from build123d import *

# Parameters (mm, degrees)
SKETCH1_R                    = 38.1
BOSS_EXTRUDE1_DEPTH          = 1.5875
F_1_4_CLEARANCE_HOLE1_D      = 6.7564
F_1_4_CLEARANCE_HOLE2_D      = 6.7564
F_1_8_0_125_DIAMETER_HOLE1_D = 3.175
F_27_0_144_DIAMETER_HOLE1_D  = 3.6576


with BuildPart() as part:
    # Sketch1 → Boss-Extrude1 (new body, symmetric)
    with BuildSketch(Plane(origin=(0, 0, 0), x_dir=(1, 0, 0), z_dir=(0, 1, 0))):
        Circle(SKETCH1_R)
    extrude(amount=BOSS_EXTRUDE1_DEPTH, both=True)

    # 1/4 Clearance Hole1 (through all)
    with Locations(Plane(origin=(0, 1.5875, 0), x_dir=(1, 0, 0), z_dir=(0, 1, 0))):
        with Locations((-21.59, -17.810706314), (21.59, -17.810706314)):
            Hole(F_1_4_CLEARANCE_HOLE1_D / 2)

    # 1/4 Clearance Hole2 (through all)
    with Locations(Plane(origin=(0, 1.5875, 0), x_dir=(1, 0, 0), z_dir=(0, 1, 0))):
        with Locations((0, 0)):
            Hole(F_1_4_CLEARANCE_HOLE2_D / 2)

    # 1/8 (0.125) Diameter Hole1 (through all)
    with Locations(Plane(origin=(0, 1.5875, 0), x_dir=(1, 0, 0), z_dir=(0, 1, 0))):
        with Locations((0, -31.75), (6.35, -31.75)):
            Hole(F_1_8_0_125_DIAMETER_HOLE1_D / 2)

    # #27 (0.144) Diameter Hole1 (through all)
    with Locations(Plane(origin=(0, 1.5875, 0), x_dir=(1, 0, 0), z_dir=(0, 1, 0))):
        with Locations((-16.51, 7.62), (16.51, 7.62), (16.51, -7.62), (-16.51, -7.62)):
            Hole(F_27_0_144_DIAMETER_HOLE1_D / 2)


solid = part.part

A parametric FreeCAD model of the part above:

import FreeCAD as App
import Part
import Sketcher
Q = App.Units.Quantity

doc = App.newDocument("Part")
body = doc.addObject("PartDesign::Body", "Body")

sketch1 = doc.addObject("Sketcher::SketchObject", "Sketch")
body.addObject(sketch1)
sketch1.AttachmentSupport = (doc.XZ_Plane, [""])
sketch1.MapMode = "FlatFace"
sketch1.addGeometry(Part.Circle(App.Vector(0, 0, 0), App.Vector(0, 0, 1), 38.1), False)
sketch1.addConstraint([
    Sketcher.Constraint("Coincident", 0, 3, -1, 1),
    Sketcher.Constraint("Diameter", 0, Q("3 in")),
])
pad1 = doc.addObject("PartDesign::Pad", "Pad")
body.addObject(pad1)
pad1.Profile = sketch1
pad1.Length = Q("0.125 in")
pad1.Midplane = True

sketch2 = doc.addObject("Sketcher::SketchObject", "Sketch001")
body.addObject(sketch2)
sketch2.AttachmentSupport = (doc.XZ_Plane, [""])
sketch2.MapMode = "FlatFace"
sketch2.AttachmentOffset = App.Placement(App.Vector(0, 0, -0.0625 * 25.4), App.Rotation())
sketch2.addGeometry([
    Part.Circle(App.Vector(-21.59, 17.810706, 0), App.Vector(0, 0, 1), 3.3782),
    Part.Circle(App.Vector(21.59, 17.810706, 0), App.Vector(0, 0, 1), 3.3782),
], False)
sketch2.addConstraint([
    Sketcher.Constraint("Equal", 0, 1),
    Sketcher.Constraint("Symmetric", 0, 3, 1, 3, -2),
    Sketcher.Constraint("Diameter", 0, Q("0.266 in")),
    Sketcher.Constraint("DistanceX", 0, 3, 1, 3, Q("1.7 in")),
    Sketcher.Constraint("DistanceY", -1, 1, 0, 3, Q("17.810706 mm")),
])
doc.recompute()
hole = doc.addObject("PartDesign::Hole", "Hole")
body.addObject(hole)
hole.Profile = sketch2
hole.ThreadType = "None"
hole.Diameter = Q("0.266 in")
hole.DepthType = "ThroughAll"
hole.Reversed = True

sketch3 = doc.addObject("Sketcher::SketchObject", "Sketch002")
body.addObject(sketch3)
sketch3.AttachmentSupport = (doc.XZ_Plane, [""])
sketch3.MapMode = "FlatFace"
sketch3.AttachmentOffset = App.Placement(App.Vector(0, 0, -0.0625 * 25.4), App.Rotation())
sketch3.addGeometry(Part.Circle(App.Vector(0, 0, 0), App.Vector(0, 0, 1), 3.3782), False)
sketch3.addConstraint([
    Sketcher.Constraint("Coincident", 0, 3, -1, 1),
    Sketcher.Constraint("Diameter", 0, Q("0.266 in")),
])
doc.recompute()
hole2 = doc.addObject("PartDesign::Hole", "Hole001")
body.addObject(hole2)
hole2.Profile = sketch3
hole2.ThreadType = "None"
hole2.Diameter = Q("0.266 in")
hole2.DepthType = "ThroughAll"
hole2.Reversed = True

sketch4 = doc.addObject("Sketcher::SketchObject", "Sketch003")
body.addObject(sketch4)
sketch4.AttachmentSupport = (doc.XZ_Plane, [""])
sketch4.MapMode = "FlatFace"
sketch4.AttachmentOffset = App.Placement(App.Vector(0, 0, -0.0625 * 25.4), App.Rotation())
sketch4.addGeometry([
    Part.Circle(App.Vector(0, 31.75, 0), App.Vector(0, 0, 1), 1.5875),
    Part.Circle(App.Vector(6.35, 31.75, 0), App.Vector(0, 0, 1), 1.5875),
], False)
sketch4.addConstraint([
    Sketcher.Constraint("Equal", 0, 1),
    Sketcher.Constraint("PointOnObject", 0, 3, -2),
    Sketcher.Constraint("Horizontal", 0, 3, 1, 3),
    Sketcher.Constraint("Diameter", 0, Q("0.125 in")),
    Sketcher.Constraint("DistanceY", -1, 1, 0, 3, Q("1.25 in")),
    Sketcher.Constraint("DistanceX", -1, 1, 1, 3, Q("0.25 in")),
])
doc.recompute()
hole3 = doc.addObject("PartDesign::Hole", "Hole002")
body.addObject(hole3)
hole3.Profile = sketch4
hole3.ThreadType = "None"
hole3.Diameter = Q("0.125 in")
hole3.DepthType = "ThroughAll"
hole3.Reversed = True

sketch5 = doc.addObject("Sketcher::SketchObject", "Sketch004")
body.addObject(sketch5)
sketch5.AttachmentSupport = (doc.XZ_Plane, [""])
sketch5.MapMode = "FlatFace"
sketch5.AttachmentOffset = App.Placement(App.Vector(0, 0, -0.0625 * 25.4), App.Rotation())
sketch5.addGeometry([
    Part.Circle(App.Vector(-16.51, -7.62, 0), App.Vector(0, 0, 1), 1.8288),
    Part.Circle(App.Vector(16.51, -7.62, 0), App.Vector(0, 0, 1), 1.8288),
    Part.Circle(App.Vector(16.51, 7.62, 0), App.Vector(0, 0, 1), 1.8288),
    Part.Circle(App.Vector(-16.51, 7.62, 0), App.Vector(0, 0, 1), 1.8288),
], False)
sketch5.addConstraint([
    Sketcher.Constraint("Equal", 0, 1),
    Sketcher.Constraint("Equal", 1, 2),
    Sketcher.Constraint("Equal", 2, 3),
    Sketcher.Constraint("Symmetric", 0, 3, 2, 3, -1, 1),
    Sketcher.Constraint("Symmetric", 1, 3, 3, 3, -1, 1),
    Sketcher.Constraint("Symmetric", 0, 3, 1, 3, -2),
    Sketcher.Constraint("Diameter", 0, Q("0.144 in")),
    Sketcher.Constraint("DistanceY", 0, 3, -1, 1, Q("0.3 in")),
    Sketcher.Constraint("DistanceX", 0, 3, 1, 3, Q("1.3 in")),
])
doc.recompute()
hole4 = doc.addObject("PartDesign::Hole", "Hole003")
body.addObject(hole4)
hole4.Profile = sketch5
hole4.ThreadType = "None"
hole4.Diameter = Q("0.144 in")
hole4.DepthType = "ThroughAll"
hole4.Reversed = True

doc.recompute()
